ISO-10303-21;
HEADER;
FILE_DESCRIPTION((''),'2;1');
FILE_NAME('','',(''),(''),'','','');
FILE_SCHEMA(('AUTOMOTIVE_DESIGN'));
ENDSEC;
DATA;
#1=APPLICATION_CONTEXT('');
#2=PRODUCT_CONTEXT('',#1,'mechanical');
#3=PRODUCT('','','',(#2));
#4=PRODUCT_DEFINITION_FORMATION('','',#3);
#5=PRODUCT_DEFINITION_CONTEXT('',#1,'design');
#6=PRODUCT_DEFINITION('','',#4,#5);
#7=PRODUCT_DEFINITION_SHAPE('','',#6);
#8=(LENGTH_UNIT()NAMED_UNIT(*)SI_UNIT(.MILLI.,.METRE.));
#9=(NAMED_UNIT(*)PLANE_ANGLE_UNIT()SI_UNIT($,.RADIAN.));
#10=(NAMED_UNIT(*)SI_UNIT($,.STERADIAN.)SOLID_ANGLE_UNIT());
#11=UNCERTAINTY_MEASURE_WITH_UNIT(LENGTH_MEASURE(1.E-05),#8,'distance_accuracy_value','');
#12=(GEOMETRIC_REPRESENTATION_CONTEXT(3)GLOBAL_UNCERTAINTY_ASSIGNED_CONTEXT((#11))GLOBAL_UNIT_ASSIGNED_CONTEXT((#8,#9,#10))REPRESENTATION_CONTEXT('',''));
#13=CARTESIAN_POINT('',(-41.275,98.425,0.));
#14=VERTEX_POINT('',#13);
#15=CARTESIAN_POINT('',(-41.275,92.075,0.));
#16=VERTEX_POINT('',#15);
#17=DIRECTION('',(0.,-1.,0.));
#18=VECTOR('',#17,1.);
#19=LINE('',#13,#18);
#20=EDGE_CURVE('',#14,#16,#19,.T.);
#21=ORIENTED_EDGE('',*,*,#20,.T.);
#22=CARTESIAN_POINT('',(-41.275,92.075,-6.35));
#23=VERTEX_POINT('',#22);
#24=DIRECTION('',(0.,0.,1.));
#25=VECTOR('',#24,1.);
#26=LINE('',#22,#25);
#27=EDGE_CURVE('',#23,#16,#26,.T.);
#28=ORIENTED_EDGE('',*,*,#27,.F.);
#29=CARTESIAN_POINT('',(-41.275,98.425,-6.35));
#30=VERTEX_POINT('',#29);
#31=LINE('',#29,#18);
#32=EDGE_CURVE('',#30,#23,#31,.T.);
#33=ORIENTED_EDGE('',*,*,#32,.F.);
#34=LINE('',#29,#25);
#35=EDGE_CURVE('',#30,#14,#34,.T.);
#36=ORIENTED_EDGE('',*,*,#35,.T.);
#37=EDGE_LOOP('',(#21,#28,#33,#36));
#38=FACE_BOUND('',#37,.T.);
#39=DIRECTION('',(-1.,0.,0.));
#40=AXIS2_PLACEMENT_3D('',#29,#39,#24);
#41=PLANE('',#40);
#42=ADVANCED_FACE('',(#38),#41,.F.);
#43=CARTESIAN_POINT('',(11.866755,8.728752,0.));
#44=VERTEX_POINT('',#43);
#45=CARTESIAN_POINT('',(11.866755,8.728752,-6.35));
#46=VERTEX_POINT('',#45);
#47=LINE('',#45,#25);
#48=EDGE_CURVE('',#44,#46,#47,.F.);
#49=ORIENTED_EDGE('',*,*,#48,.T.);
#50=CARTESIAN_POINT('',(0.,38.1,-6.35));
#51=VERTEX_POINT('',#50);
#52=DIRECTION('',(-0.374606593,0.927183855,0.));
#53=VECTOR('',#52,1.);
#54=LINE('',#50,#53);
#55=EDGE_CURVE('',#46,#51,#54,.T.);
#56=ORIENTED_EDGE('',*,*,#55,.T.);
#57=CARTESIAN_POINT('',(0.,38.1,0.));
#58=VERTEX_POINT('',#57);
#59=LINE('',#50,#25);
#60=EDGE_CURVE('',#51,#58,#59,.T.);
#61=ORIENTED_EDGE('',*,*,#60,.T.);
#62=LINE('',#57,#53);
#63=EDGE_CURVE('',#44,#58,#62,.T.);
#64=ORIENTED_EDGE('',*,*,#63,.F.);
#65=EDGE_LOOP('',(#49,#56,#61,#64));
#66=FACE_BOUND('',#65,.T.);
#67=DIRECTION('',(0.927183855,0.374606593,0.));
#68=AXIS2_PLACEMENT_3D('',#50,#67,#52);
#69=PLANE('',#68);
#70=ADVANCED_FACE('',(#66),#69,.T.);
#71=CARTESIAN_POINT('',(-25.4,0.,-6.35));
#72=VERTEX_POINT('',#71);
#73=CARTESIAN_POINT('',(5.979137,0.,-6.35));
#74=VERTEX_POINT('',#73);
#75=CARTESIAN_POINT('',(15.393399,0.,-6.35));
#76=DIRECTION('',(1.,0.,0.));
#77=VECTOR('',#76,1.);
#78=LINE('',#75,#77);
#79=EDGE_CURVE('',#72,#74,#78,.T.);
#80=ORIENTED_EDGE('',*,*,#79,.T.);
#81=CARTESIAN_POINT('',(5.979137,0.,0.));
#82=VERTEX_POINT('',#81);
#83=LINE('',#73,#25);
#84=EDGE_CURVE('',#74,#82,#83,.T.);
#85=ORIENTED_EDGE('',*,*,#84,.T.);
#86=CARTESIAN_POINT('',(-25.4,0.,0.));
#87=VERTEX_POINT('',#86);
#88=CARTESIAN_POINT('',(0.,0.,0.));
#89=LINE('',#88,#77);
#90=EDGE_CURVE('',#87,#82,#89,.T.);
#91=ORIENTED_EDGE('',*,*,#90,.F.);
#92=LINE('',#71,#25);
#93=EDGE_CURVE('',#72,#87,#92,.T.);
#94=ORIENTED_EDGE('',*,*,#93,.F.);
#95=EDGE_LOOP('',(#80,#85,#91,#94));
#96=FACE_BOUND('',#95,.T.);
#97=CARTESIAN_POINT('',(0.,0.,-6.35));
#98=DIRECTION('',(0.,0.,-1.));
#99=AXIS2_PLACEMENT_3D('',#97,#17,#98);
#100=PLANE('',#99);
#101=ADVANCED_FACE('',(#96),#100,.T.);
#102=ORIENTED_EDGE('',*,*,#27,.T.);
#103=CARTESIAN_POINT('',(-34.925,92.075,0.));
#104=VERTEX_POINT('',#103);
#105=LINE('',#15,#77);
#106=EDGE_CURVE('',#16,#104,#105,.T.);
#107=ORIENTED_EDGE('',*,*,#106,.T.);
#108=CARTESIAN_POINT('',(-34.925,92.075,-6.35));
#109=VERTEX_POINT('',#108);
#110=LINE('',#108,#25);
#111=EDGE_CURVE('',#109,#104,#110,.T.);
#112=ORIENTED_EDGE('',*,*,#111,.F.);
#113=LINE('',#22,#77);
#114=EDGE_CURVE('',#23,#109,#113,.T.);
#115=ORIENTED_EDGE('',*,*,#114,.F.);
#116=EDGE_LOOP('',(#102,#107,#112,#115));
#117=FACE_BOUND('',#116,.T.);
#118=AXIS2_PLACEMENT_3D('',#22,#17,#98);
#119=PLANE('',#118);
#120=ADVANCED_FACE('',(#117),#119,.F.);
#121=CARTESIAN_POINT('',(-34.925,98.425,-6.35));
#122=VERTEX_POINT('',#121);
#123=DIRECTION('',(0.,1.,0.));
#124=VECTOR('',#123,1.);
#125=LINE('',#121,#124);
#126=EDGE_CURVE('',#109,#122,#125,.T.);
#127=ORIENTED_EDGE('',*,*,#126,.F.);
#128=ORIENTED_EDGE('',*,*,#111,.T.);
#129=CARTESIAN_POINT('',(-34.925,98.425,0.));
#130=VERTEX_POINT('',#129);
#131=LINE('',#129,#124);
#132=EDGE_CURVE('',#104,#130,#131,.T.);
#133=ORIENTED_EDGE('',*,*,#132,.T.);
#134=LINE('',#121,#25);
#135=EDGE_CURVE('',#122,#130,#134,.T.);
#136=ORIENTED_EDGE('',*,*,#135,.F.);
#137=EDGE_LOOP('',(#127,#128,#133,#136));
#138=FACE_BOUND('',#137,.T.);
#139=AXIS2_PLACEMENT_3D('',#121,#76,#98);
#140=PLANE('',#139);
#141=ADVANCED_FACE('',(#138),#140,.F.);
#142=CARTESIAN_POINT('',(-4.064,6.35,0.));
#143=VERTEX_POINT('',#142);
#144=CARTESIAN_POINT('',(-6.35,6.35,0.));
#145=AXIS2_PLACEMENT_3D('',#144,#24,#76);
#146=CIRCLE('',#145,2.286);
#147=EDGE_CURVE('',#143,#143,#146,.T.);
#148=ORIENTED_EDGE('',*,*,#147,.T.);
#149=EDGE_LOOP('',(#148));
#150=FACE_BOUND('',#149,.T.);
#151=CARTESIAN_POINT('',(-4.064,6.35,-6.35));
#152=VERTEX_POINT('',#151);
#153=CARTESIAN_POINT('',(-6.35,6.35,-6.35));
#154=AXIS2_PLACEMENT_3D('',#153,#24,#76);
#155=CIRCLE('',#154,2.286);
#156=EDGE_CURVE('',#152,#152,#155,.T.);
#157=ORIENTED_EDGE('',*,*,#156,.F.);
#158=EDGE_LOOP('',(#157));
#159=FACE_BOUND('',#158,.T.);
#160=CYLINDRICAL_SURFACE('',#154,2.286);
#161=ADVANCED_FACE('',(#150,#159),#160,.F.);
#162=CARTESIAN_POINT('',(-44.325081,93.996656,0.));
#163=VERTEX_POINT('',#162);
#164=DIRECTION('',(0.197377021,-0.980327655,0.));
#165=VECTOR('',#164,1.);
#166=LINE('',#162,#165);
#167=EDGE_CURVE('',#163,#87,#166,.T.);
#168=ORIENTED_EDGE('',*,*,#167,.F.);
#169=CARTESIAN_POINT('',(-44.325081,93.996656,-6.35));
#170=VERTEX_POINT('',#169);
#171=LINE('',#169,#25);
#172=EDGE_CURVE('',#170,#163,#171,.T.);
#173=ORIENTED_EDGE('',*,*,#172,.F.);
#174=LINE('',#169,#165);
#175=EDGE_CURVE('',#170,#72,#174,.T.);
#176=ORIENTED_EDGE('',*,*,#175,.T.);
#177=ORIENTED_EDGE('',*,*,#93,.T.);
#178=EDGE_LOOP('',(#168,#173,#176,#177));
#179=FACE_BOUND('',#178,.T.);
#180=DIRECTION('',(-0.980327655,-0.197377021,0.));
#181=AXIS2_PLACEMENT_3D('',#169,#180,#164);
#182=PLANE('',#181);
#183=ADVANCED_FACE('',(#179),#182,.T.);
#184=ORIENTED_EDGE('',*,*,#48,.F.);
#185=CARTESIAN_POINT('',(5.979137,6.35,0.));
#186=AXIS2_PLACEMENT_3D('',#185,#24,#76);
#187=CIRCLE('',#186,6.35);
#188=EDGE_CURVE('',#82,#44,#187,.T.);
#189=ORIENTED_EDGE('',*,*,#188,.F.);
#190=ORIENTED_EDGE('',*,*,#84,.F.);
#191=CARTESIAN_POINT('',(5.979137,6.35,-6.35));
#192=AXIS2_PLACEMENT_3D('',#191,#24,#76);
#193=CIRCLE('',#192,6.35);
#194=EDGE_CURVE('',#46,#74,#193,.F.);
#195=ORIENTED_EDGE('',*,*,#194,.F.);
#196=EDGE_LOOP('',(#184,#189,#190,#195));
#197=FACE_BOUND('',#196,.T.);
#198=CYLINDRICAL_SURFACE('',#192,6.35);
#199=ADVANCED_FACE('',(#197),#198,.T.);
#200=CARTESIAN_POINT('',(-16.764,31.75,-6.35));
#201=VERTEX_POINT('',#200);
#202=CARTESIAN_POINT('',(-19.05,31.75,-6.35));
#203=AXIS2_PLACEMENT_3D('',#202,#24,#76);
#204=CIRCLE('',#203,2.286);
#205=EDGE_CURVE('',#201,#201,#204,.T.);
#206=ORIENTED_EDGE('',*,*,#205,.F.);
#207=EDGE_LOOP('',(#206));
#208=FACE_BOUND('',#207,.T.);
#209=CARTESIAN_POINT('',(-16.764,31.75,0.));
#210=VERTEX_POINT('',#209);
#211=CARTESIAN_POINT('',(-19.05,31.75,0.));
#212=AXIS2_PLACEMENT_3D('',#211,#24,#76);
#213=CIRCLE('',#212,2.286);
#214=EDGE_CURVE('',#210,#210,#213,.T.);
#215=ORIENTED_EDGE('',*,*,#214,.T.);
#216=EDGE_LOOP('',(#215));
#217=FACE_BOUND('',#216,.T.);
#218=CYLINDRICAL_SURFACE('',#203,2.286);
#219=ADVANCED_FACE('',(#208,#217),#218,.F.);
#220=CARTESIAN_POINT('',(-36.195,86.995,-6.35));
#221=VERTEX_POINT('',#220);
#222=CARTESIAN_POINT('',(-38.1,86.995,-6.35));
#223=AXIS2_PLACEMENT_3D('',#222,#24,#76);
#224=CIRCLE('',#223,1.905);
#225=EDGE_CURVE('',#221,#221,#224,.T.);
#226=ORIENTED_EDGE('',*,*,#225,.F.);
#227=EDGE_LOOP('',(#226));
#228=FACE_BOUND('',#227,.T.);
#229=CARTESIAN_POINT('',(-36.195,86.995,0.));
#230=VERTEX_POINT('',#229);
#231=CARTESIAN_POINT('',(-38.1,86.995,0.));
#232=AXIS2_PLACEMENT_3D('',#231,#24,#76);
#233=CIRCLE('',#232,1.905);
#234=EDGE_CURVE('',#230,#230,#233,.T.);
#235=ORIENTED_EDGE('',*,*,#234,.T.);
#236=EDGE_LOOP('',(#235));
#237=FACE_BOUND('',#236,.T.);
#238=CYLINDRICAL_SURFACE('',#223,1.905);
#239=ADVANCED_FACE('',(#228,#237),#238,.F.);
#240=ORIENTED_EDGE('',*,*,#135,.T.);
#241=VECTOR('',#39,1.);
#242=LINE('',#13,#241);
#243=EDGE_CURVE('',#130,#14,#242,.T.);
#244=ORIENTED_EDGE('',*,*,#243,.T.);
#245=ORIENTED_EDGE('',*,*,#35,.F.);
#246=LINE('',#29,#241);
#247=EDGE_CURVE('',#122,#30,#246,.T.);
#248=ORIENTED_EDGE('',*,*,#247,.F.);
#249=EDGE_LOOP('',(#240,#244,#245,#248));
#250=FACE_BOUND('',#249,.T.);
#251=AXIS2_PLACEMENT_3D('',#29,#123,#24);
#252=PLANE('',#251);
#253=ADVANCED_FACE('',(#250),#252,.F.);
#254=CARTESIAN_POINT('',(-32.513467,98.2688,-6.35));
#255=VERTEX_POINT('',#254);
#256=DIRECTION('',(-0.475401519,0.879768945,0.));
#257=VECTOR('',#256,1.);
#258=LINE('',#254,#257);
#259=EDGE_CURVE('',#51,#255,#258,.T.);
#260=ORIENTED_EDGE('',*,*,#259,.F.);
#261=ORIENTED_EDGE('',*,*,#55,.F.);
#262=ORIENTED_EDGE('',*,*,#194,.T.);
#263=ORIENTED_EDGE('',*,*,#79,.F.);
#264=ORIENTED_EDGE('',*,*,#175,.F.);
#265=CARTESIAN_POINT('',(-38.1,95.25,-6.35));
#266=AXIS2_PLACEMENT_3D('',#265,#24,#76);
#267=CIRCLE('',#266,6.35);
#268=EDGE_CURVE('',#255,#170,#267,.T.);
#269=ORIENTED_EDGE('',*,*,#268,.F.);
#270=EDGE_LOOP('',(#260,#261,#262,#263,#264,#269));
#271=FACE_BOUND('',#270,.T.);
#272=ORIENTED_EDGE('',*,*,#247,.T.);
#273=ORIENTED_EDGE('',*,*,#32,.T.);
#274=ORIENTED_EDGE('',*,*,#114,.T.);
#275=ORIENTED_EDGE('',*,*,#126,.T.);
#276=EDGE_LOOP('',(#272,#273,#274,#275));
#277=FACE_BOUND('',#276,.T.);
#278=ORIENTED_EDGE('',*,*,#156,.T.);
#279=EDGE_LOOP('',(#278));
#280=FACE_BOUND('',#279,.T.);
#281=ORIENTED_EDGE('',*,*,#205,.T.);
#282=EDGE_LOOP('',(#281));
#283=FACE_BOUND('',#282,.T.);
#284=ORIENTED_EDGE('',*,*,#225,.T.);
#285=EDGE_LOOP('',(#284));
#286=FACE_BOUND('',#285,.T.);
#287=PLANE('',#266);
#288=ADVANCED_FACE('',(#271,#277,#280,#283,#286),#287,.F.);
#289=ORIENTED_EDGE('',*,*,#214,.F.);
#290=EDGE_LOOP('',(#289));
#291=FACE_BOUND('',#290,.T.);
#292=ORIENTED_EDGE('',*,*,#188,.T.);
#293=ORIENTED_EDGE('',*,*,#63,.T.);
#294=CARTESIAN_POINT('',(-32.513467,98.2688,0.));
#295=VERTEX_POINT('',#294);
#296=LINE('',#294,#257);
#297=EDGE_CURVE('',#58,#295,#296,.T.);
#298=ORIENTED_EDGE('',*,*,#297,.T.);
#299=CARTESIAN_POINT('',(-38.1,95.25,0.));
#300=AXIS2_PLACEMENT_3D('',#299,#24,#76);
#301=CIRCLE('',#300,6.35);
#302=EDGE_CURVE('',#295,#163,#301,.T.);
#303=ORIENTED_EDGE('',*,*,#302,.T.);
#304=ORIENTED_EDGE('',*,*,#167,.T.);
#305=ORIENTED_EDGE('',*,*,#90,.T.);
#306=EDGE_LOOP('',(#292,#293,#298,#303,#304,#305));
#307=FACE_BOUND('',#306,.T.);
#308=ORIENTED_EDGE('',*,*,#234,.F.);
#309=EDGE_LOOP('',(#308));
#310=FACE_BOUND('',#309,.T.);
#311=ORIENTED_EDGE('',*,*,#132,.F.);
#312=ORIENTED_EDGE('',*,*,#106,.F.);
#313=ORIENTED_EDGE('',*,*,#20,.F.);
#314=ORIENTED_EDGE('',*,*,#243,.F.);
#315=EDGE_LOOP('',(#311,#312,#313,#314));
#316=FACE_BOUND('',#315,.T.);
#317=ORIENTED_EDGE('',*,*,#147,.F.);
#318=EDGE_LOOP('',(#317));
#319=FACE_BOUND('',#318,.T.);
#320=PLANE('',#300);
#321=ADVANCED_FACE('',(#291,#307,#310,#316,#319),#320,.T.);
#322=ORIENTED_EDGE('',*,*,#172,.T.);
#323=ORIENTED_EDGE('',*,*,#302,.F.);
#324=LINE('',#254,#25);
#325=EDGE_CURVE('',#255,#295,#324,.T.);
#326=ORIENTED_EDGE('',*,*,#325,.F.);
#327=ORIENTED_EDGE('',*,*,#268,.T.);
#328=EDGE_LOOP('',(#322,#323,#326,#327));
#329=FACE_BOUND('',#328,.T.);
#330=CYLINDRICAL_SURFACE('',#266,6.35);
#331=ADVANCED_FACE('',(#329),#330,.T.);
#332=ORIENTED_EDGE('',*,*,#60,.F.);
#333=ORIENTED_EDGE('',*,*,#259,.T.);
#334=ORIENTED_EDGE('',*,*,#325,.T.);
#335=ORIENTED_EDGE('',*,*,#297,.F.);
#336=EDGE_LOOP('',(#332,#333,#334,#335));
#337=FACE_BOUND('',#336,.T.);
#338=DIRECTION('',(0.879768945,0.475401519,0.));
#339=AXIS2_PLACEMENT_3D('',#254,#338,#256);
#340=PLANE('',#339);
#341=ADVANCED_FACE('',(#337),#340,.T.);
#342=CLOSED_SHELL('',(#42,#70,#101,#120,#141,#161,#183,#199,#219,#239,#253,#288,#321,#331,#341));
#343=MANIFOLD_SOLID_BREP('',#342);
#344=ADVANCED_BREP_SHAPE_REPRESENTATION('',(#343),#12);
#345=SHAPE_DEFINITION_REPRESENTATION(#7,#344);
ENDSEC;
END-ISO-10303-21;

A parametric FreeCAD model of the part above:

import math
import FreeCAD as App
import Part
import Sketcher
Q = App.Units.Quantity


def edges_at(feature, points):
    """Names of the edges that pass closest to the given points."""
    edges = feature.Shape.Edges
    near = lambda p: min(range(len(edges)), key=lambda i: edges[i].distToShape(Part.Vertex(*p))[0])
    return sorted({f"Edge{near(p) + 1}" for p in points})

doc = App.newDocument("Part")
body = doc.addObject("PartDesign::Body", "Body")

# Sketch on XY plane
sketch1 = body.newObject("Sketcher::SketchObject", "Sketch")
sketch1.AttachmentSupport = (doc.getObject("XY_Plane"), [""])
sketch1.MapMode = "FlatFace"
sketch1.addGeometry([
    Part.LineSegment(App.Vector(-44.3, 94, 0), App.Vector(-25.4, 0, 0)),  # 0
    Part.LineSegment(App.Vector(-25.4, 0, 0), App.Vector(15.4, 0, 0)),  # 1
    Part.LineSegment(App.Vector(15.4, 0, 0), App.Vector(0, 38.1, 0)),  # 2
    Part.LineSegment(App.Vector(0, 38.1, 0), App.Vector(-32.5, 98.3, 0)),  # 3
    Part.ArcOfCircle(Part.Circle(App.Vector(-38.1, 95.2, 0), App.Vector(0, 0, 1), 6.3), math.radians(28), math.radians(191)),  # 4
    Part.Circle(App.Vector(-6.3, 6.3, 0), App.Vector(0, 0, 1), 2.3),  # 5
    Part.Circle(App.Vector(-19.1, 31.8, 0), App.Vector(0, 0, 1), 2.3),  # 6
    Part.Circle(App.Vector(-38.1, 87, 0), App.Vector(0, 0, 1), 1.9),  # 7
    Part.LineSegment(App.Vector(-41.3, 92.1, 0), App.Vector(-41.3, 98.4, 0)),  # 8
    Part.LineSegment(App.Vector(-41.3, 98.4, 0), App.Vector(-34.9, 98.4, 0)),  # 9
    Part.LineSegment(App.Vector(-34.9, 98.4, 0), App.Vector(-34.9, 92.1, 0)),  # 10
    Part.LineSegment(App.Vector(-34.9, 92.1, 0), App.Vector(-41.3, 92.1, 0)),  # 11
], False)
sketch1.addConstraint([
    Sketcher.Constraint("Coincident", 0, 2, 1, 1),
    Sketcher.Constraint("Coincident", 1, 2, 2, 1),
    Sketcher.Constraint("Coincident", 2, 2, 3, 1),
    Sketcher.Constraint("Tangent", 3, 2, 4, 1),
    Sketcher.Constraint("Tangent", 4, 2, 0, 1),
    Sketcher.Constraint("Coincident", 8, 2, 9, 1),
    Sketcher.Constraint("Coincident", 9, 2, 10, 1),
    Sketcher.Constraint("Coincident", 10, 2, 11, 1),
    Sketcher.Constraint("Coincident", 11, 2, 8, 1),
    Sketcher.Constraint("Horizontal", 1),
    Sketcher.Constraint("Vertical", 8),
    Sketcher.Constraint("Horizontal", 9),
    Sketcher.Constraint("Vertical", 10),
    Sketcher.Constraint("Horizontal", 11),
    Sketcher.Constraint("Equal", 5, 6),
    Sketcher.Constraint("PointOnObject", 0, 2, -1),
    Sketcher.Constraint("PointOnObject", 2, 2, -2),
    Sketcher.Constraint("Vertical", 4, 3, 7, 3),
    Sketcher.Constraint("Equal", 11, 8),
    Sketcher.Constraint("Diameter", 5, Q("0.18 in")),
    Sketcher.Constraint("Diameter", 7, Q("0.15 in")),
    Sketcher.Constraint("Radius", 4, Q("0.25 in")),
    Sketcher.Constraint("DistanceX", 0, 2, -1, 1, Q("1 in")),
    Sketcher.Constraint("Angle", 2, Q("112 deg")),
    Sketcher.Constraint("DistanceY", 5, 3, 6, 3, Q("1 in")),
    Sketcher.Constraint("DistanceX", 9, 1, 9, 2, Q("0.25 in")),
    Sketcher.Constraint("DistanceX", 4, 3, -1, 1, Q("1.5 in")),
    Sketcher.Constraint("DistanceY", -1, 1, 2, 2, Q("1.5 in")),
    Sketcher.Constraint("DistanceY", 5, 3, 4, 3, Q("3.5 in")),
    Sketcher.Constraint("DistanceX", 6, 3, 5, 3, Q("0.5 in")),
    Sketcher.Constraint("DistanceY", 7, 3, 10, 2, Q("0.2 in")),
    Sketcher.Constraint("DistanceY", -1, 1, 4, 3, Q("3.75 in")),
    Sketcher.Constraint("DistanceX", 5, 3, -1, 1, Q("0.25 in")),
    Sketcher.Constraint("DistanceY", -1, 1, 7, 3, Q("3.425 in")),
    Sketcher.Constraint("DistanceX", 8, 2, -1, 1, Q("1.625 in")),
])
pad1 = body.newObject("PartDesign::Pad", "Pad")
pad1.Profile = sketch1
pad1.Length = Q("0.25 in")
pad1.Reversed = True
doc.recompute()

fillet = body.newObject("PartDesign::Fillet", "Fillet")
fillet.Base = (pad1, edges_at(pad1, [(15.393, 0, -3.175)]))
fillet.Radius = Q("0.25 in")

doc.recompute()
